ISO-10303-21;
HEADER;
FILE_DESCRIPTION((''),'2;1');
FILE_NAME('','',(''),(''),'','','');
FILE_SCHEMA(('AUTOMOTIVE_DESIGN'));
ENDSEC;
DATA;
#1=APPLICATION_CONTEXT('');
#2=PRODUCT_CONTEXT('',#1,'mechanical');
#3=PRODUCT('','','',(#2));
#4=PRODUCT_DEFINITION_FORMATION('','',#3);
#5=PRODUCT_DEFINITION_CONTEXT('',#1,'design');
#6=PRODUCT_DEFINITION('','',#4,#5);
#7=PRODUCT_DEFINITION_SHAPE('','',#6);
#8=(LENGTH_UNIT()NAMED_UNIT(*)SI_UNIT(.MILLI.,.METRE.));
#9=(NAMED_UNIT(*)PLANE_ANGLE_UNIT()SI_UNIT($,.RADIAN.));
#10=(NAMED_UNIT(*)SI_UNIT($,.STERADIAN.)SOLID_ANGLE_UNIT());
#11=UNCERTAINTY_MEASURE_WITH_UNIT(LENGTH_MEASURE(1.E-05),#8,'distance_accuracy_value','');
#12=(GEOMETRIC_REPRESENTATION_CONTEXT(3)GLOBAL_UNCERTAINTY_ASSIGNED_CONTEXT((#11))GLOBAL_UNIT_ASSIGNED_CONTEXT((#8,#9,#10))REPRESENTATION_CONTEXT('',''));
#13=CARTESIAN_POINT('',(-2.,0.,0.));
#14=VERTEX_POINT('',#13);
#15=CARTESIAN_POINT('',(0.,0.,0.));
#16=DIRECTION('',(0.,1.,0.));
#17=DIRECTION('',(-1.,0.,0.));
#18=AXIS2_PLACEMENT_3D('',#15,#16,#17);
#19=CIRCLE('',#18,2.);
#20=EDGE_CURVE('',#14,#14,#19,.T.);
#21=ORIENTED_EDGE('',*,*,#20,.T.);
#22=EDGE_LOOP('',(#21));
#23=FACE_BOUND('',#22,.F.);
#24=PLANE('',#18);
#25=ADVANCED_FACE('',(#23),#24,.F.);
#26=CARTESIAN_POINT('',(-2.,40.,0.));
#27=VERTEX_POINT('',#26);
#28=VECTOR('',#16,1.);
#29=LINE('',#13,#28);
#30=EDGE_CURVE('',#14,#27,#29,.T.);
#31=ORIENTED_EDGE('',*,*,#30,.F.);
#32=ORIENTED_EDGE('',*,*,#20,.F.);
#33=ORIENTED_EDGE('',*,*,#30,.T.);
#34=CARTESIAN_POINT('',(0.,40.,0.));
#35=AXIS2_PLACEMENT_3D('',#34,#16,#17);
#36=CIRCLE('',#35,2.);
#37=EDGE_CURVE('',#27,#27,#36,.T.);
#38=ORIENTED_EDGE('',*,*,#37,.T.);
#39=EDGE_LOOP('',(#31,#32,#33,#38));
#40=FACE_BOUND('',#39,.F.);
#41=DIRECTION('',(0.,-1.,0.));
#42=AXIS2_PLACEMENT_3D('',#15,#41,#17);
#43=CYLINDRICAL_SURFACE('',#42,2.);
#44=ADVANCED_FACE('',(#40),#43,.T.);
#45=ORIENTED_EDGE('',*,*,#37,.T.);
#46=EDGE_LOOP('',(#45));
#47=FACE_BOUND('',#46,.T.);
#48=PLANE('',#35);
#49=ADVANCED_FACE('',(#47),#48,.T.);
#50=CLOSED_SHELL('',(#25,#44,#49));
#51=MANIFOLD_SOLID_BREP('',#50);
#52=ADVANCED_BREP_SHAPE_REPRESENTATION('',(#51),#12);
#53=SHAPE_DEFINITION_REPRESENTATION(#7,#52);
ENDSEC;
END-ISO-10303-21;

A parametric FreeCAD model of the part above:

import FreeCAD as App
import Part
import Sketcher
Q = App.Units.Quantity

doc = App.newDocument("Part")
body = doc.addObject("PartDesign::Body", "Body")

sketch1 = doc.addObject("Sketcher::SketchObject", "Sketch")
body.addObject(sketch1)
sketch1.AttachmentSupport = (doc.XZ_Plane, [""])
sketch1.MapMode = "FlatFace"
sketch1.addGeometry(Part.Circle(App.Vector(0, 0, 0), App.Vector(0, 0, 1), 2), False)
sketch1.addConstraint([
    Sketcher.Constraint("Coincident", 0, 3, -1, 1),
    Sketcher.Constraint("Diameter", 0, Q("4 mm")),
])
pad1 = doc.addObject("PartDesign::Pad", "Pad")
body.addObject(pad1)
pad1.Profile = sketch1
pad1.Length = 40
pad1.Reversed = True

doc.recompute()
